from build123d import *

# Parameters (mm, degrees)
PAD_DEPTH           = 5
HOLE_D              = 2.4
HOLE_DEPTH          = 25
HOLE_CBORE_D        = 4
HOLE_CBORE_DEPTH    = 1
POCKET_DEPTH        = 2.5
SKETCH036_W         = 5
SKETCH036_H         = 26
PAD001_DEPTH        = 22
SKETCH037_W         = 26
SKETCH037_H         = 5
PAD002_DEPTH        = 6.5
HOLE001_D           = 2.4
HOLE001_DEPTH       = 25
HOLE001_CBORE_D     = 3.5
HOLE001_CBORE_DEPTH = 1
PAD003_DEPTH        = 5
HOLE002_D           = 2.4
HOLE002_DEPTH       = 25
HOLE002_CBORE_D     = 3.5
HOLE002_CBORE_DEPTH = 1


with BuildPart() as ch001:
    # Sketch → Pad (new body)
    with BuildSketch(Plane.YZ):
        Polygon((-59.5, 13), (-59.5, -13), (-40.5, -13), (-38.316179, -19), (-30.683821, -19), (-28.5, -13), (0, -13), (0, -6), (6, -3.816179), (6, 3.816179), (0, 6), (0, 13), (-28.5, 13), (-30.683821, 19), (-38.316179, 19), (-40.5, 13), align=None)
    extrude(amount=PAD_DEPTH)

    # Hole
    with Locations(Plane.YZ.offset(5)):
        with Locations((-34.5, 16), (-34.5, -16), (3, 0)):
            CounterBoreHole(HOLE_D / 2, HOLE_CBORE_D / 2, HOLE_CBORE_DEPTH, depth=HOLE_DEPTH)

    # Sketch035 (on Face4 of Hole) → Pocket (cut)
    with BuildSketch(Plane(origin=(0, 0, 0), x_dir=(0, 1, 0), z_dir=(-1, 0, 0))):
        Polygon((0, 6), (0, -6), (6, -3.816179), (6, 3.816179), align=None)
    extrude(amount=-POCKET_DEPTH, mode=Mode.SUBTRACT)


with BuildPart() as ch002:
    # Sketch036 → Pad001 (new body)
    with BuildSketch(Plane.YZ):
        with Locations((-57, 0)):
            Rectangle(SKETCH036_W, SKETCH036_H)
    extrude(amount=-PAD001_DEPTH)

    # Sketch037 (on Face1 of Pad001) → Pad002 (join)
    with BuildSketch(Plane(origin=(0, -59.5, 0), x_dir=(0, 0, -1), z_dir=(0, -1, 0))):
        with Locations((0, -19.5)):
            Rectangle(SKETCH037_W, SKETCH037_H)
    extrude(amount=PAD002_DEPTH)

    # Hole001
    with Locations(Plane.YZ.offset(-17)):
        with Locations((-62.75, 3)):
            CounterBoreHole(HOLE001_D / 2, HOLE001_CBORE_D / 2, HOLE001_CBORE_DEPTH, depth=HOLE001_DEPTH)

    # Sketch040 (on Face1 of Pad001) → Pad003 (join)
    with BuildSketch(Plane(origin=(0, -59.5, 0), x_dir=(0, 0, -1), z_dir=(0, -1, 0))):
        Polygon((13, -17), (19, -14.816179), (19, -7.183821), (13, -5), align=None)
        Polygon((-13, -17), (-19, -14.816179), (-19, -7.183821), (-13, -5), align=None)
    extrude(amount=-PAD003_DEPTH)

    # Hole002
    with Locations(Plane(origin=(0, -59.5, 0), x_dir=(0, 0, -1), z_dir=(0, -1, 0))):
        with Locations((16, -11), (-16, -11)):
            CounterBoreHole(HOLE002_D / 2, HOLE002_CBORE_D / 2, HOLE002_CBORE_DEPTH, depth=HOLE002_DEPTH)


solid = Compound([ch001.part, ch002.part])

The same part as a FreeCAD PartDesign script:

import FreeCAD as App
import Part
import Sketcher
from FreeCAD import Vector
Q = App.Units.Quantity

doc = App.newDocument("Part")
body = doc.addObject("PartDesign::Body", "Body")

# Sketch on YZ plane
sketch1 = doc.addObject("Sketcher::SketchObject", "Sketch")
body.addObject(sketch1)
sketch1.AttachmentSupport = (doc.YZ_Plane, [""])
sketch1.MapMode = "FlatFace"
sketch1.addGeometry([
    Part.LineSegment(Vector(-60, 13, 0), Vector(-60, -13, 0)),  # 0
    Part.LineSegment(Vector(-60, -13, 0), Vector(-40, -13, 0)),  # 1
    Part.LineSegment(Vector(-40, -13, 0), Vector(-38, -19, 0)),  # 2
    Part.LineSegment(Vector(-38, -19, 0), Vector(-31, -19, 0)),  # 3
    Part.LineSegment(Vector(-31, -19, 0), Vector(-28, -13, 0)),  # 4
    Part.LineSegment(Vector(-28, -13, 0), Vector(0, -13, 0)),  # 5
    Part.LineSegment(Vector(0, -13, 0), Vector(0, -6, 0)),  # 6
    Part.LineSegment(Vector(0, -6, 0), Vector(6, -4, 0)),  # 7
    Part.LineSegment(Vector(6, -4, 0), Vector(6, 4, 0)),  # 8
    Part.LineSegment(Vector(6, 4, 0), Vector(0, 6, 0)),  # 9
    Part.LineSegment(Vector(0, 6, 0), Vector(0, 13, 0)),  # 10
    Part.LineSegment(Vector(0, 13, 0), Vector(-28, 13, 0)),  # 11
    Part.LineSegment(Vector(-28, 13, 0), Vector(-31, 19, 0)),  # 12
    Part.LineSegment(Vector(-31, 19, 0), Vector(-38, 19, 0)),  # 13
    Part.LineSegment(Vector(-38, 19, 0), Vector(-40, 13, 0)),  # 14
    Part.LineSegment(Vector(-40, 13, 0), Vector(-60, 13, 0)),  # 15
], False)
sketch1.addConstraint([
    Sketcher.Constraint("Coincident", 0, 2, 1, 1),
    Sketcher.Constraint("Coincident", 1, 2, 2, 1),
    Sketcher.Constraint("Coincident", 2, 2, 3, 1),
    Sketcher.Constraint("Coincident", 3, 2, 4, 1),
    Sketcher.Constraint("Coincident", 4, 2, 5, 1),
    Sketcher.Constraint("Coincident", 5, 2, 6, 1),
    Sketcher.Constraint("Coincident", 6, 2, 7, 1),
    Sketcher.Constraint("Coincident", 7, 2, 8, 1),
    Sketcher.Constraint("Coincident", 8, 2, 9, 1),
    Sketcher.Constraint("Coincident", 9, 2, 10, 1),
    Sketcher.Constraint("Coincident", 10, 2, 11, 1),
    Sketcher.Constraint("Coincident", 11, 2, 12, 1),
    Sketcher.Constraint("Coincident", 12, 2, 13, 1),
    Sketcher.Constraint("Coincident", 13, 2, 14, 1),
    Sketcher.Constraint("Coincident", 14, 2, 15, 1),
    Sketcher.Constraint("Coincident", 15, 2, 0, 1),
    Sketcher.Constraint("Vertical", 0),
    Sketcher.Constraint("Horizontal", 1),
    Sketcher.Constraint("Horizontal", 3),
    Sketcher.Constraint("Horizontal", 5),
    Sketcher.Constraint("Vertical", 6),
    Sketcher.Constraint("Vertical", 8),
    Sketcher.Constraint("Vertical", 10),
    Sketcher.Constraint("Horizontal", 11),
    Sketcher.Constraint("Horizontal", 13),
    Sketcher.Constraint("Horizontal", 15),
    Sketcher.Constraint("Symmetric", 6, 2, 9, 2, -1, 1),
    Sketcher.Constraint("Symmetric", 5, 2, 10, 2, -1),
    Sketcher.Constraint("Symmetric", 3, 2, 12, 2, -1),
    Sketcher.Constraint("Symmetric", 1, 2, 14, 2, -1),
    Sketcher.Constraint("Perpendicular", 2, 7),
    Sketcher.Constraint("Perpendicular", 4, 9),
    Sketcher.Constraint("Perpendicular", 7, 12),
    Sketcher.Constraint("Perpendicular", 9, 14),
    Sketcher.Constraint("Horizontal", 1, 2, 4, 2),
    Sketcher.Constraint("Vertical", 4, 2, 11, 2),
    Sketcher.Constraint("Equal", 13, 8),
    Sketcher.Constraint("Equal", 4, 7),
    Sketcher.Constraint("DistanceX", 1, 1, 1, 2, 19.0),
    Sketcher.Constraint("DistanceY", 0, 2, 0, 1, 26.0),
    Sketcher.Constraint("DistanceY", 6, 1, 6, 2, 7.0),
    Sketcher.Constraint("Angle", 2, Q("-70.000003 deg")),
    Sketcher.Constraint("DistanceX", 5, 1, 5, 2, 28.5),
    Sketcher.Constraint("DistanceY", 2, 2, -1, 1, 19.0),
])
pad1 = doc.addObject("PartDesign::Pad", "Pad")
body.addObject(pad1)
pad1.Profile = sketch1
pad1.Length = 5

# Sketch on YZ plane
sketch2 = doc.addObject("Sketcher::SketchObject", "Sketch001")
body.addObject(sketch2)
sketch2.AttachmentSupport = (doc.YZ_Plane, [""])
sketch2.MapMode = "FlatFace"
sketch2.AttachmentOffset = App.Placement(Vector(0, 0, 5), App.Rotation())
sketch2.addGeometry([
    Part.Circle(Vector(-34.5, 16, 0), Vector(0, 0, 1), 1.2),
    Part.Circle(Vector(-34.5, -16, 0), Vector(0, 0, 1), 1.2),
    Part.Circle(Vector(3, 0, 0), Vector(0, 0, 1), 1.2),
], False)
sketch2.addConstraint([
    Sketcher.Constraint("Equal", 0, 1),
    Sketcher.Constraint("Equal", 1, 2),
    Sketcher.Constraint("Symmetric", 0, 3, 1, 3, -1),
    Sketcher.Constraint("PointOnObject", 2, 3, -1),
    Sketcher.Constraint("Diameter", 0, 2.4),
    Sketcher.Constraint("DistanceY", -1, 1, 0, 3, 16.0),
    Sketcher.Constraint("DistanceX", -1, 1, 2, 3, 3.0),
    Sketcher.Constraint("DistanceX", 0, 3, -1, 1, 34.5),
])
doc.recompute()
hole = doc.addObject("PartDesign::Hole", "Hole")
body.addObject(hole)
hole.Profile = sketch2
hole.ThreadType = "None"
hole.Diameter = 2.4
hole.DepthType = "Dimension"
hole.Depth = 25
hole.DrillPoint = "Flat"
hole.HoleCutType = "Counterbore"
hole.HoleCutDiameter = 4
hole.HoleCutDepth = 1

# Sketch on YZ plane
sketch3 = doc.addObject("Sketcher::SketchObject", "Sketch002")
body.addObject(sketch3)
sketch3.AttachmentSupport = (doc.YZ_Plane, [""])
sketch3.MapMode = "FlatFace"
sketch3.addGeometry([
    Part.LineSegment(Vector(0, -6, 0), Vector(0, 6, 0)),
    Part.LineSegment(Vector(0, 6, 0), Vector(6, 4, 0)),
    Part.LineSegment(Vector(6, 4, 0), Vector(6, -4, 0)),
    Part.LineSegment(Vector(6, -4, 0), Vector(0, -6, 0)),
], False)
sketch3.addConstraint([
    Sketcher.Constraint("Coincident", 0, 2, 1, 1),
    Sketcher.Constraint("Coincident", 1, 2, 2, 1),
    Sketcher.Constraint("Coincident", 2, 2, 3, 1),
    Sketcher.Constraint("Coincident", 3, 2, 0, 1),
    Sketcher.Constraint("Vertical", 0),
    Sketcher.Constraint("Vertical", 2),
    Sketcher.Constraint("Symmetric", 0, 2, 3, 2, -1, 1),
    Sketcher.Constraint("Equal", 1, 3),
    Sketcher.Constraint("DistanceY", 0, 1, 0, 2, 12.0),
    Sketcher.Constraint("Angle", 1, Q("-19.999997 deg")),
    Sketcher.Constraint("DistanceX", -1, 1, 1, 2, 6.0),
])
pocket1 = doc.addObject("PartDesign::Pocket", "Pocket")
body.addObject(pocket1)
pocket1.Profile = sketch3
pocket1.Length = 2.5
pocket1.Reversed = True
body2 = doc.addObject("PartDesign::Body", "Body001")

# Sketch on YZ plane
sketch4 = doc.addObject("Sketcher::SketchObject", "Sketch003")
body2.addObject(sketch4)
sketch4.AttachmentSupport = (doc.getObject("YZ_Plane001"), [""])
sketch4.MapMode = "FlatFace"
sketch4.addGeometry([
    Part.LineSegment(Vector(-60, 13, 0), Vector(-60, -13, 0)),
    Part.LineSegment(Vector(-60, -13, 0), Vector(-54, -13, 0)),
    Part.LineSegment(Vector(-54, -13, 0), Vector(-54, 13, 0)),
    Part.LineSegment(Vector(-54, 13, 0), Vector(-60, 13, 0)),
], False)
sketch4.addConstraint([
    Sketcher.Constraint("Coincident", 0, 2, 1, 1),
    Sketcher.Constraint("Coincident", 1, 2, 2, 1),
    Sketcher.Constraint("Coincident", 2, 2, 3, 1),
    Sketcher.Constraint("Coincident", 3, 2, 0, 1),
    Sketcher.Constraint("Vertical", 0),
    Sketcher.Constraint("Horizontal", 1),
    Sketcher.Constraint("Vertical", 2),
    Sketcher.Constraint("Horizontal", 3),
    Sketcher.Constraint("DistanceX", 1, 1, 1, 2, 5.0),
    Sketcher.Constraint("DistanceY", 0, 2, 0, 1, 26.0),
    Sketcher.Constraint("DistanceY", 0, 2, -1, 1, 13.0),
    Sketcher.Constraint("DistanceX", 0, 2, -1, 1, 59.5),
])
pad2 = doc.addObject("PartDesign::Pad", "Pad001")
body2.addObject(pad2)
pad2.Profile = sketch4
pad2.Length = 22
pad2.Reversed = True

# Sketch on XZ plane
sketch5 = doc.addObject("Sketcher::SketchObject", "Sketch004")
body2.addObject(sketch5)
sketch5.AttachmentSupport = (doc.getObject("XZ_Plane001"), [""])
sketch5.MapMode = "FlatFace"
sketch5.AttachmentOffset = App.Placement(Vector(0, 0, 59.5), App.Rotation())
sketch5.addGeometry([
    Part.LineSegment(Vector(-17, 13, 0), Vector(-22, 13, 0)),
    Part.LineSegment(Vector(-22, 13, 0), Vector(-22, -13, 0)),
    Part.LineSegment(Vector(-22, -13, 0), Vector(-17, -13, 0)),
    Part.LineSegment(Vector(-17, -13, 0), Vector(-17, 13, 0)),
], False)
sketch5.addConstraint([
    Sketcher.Constraint("Coincident", 0, 2, 1, 1),
    Sketcher.Constraint("Coincident", 1, 2, 2, 1),
    Sketcher.Constraint("Coincident", 2, 2, 3, 1),
    Sketcher.Constraint("Coincident", 3, 2, 0, 1),
    Sketcher.Constraint("Horizontal", 0),
    Sketcher.Constraint("Vertical", 1),
    Sketcher.Constraint("Horizontal", 2),
    Sketcher.Constraint("Vertical", 3),
    Sketcher.Constraint("DistanceX", 0, 2, 0, 1, 5.0),
    Sketcher.Constraint("DistanceY", 1, 2, 1, 1, 26.0),
    Sketcher.Constraint("DistanceX", 0, 2, -1, 1, 22.0),
    Sketcher.Constraint("DistanceY", -1, 1, 0, 2, 13.0),
])
pad3 = doc.addObject("PartDesign::Pad", "Pad002")
body2.addObject(pad3)
pad3.Profile = sketch5
pad3.Length = 6.5

# Sketch on YZ plane
sketch6 = doc.addObject("Sketcher::SketchObject", "Sketch005")
body2.addObject(sketch6)
sketch6.AttachmentSupport = (doc.getObject("YZ_Plane001"), [""])
sketch6.MapMode = "FlatFace"
sketch6.AttachmentOffset = App.Placement(Vector(0, 0, -17), App.Rotation())
sketch6.addGeometry(Part.Circle(Vector(-62.8, 3, 0), Vector(0, 0, 1), 1.2), False)
sketch6.addConstraint([
    Sketcher.Constraint("Diameter", 0, 2.4),
    Sketcher.Constraint("DistanceY", -1, 1, 0, 3, 3.0),
    Sketcher.Constraint("DistanceX", 0, 3, -1, 1, 62.75),
])
doc.recompute()
hole2 = doc.addObject("PartDesign::Hole", "Hole001")
body2.addObject(hole2)
hole2.Profile = sketch6
hole2.ThreadType = "None"
hole2.Diameter = 2.4
hole2.DepthType = "Dimension"
hole2.Depth = 25
hole2.DrillPoint = "Flat"
hole2.HoleCutType = "Counterbore"
hole2.HoleCutDiameter = 3.5
hole2.HoleCutDepth = 1

# Sketch on XZ plane
sketch7 = doc.addObject("Sketcher::SketchObject", "Sketch006")
body2.addObject(sketch7)
sketch7.AttachmentSupport = (doc.getObject("XZ_Plane001"), [""])
sketch7.MapMode = "FlatFace"
sketch7.AttachmentOffset = App.Placement(Vector(0, 0, 59.5), App.Rotation())
sketch7.addGeometry([
    Part.LineSegment(Vector(-17, -13, 0), Vector(-15, -19, 0)),  # 0
    Part.LineSegment(Vector(-15, -19, 0), Vector(-7, -19, 0)),  # 1
    Part.LineSegment(Vector(-7, -19, 0), Vector(-5, -13, 0)),  # 2
    Part.LineSegment(Vector(-5, -13, 0), Vector(-17, -13, 0)),  # 3
    Part.LineSegment(Vector(-15, 19, 0), Vector(-17, 13, 0)),  # 4
    Part.LineSegment(Vector(-17, 13, 0), Vector(-5, 13, 0)),  # 5
    Part.LineSegment(Vector(-5, 13, 0), Vector(-7, 19, 0)),  # 6
    Part.LineSegment(Vector(-7, 19, 0), Vector(-15, 19, 0)),  # 7
], False)
sketch7.addConstraint([
    Sketcher.Constraint("Coincident", 0, 2, 1, 1),
    Sketcher.Constraint("Coincident", 1, 2, 2, 1),
    Sketcher.Constraint("Coincident", 2, 2, 3, 1),
    Sketcher.Constraint("Coincident", 3, 2, 0, 1),
    Sketcher.Constraint("Coincident", 4, 2, 5, 1),
    Sketcher.Constraint("Coincident", 5, 2, 6, 1),
    Sketcher.Constraint("Coincident", 6, 2, 7, 1),
    Sketcher.Constraint("Coincident", 7, 2, 4, 1),
    Sketcher.Constraint("Horizontal", 1),
    Sketcher.Constraint("Horizontal", 3),
    Sketcher.Constraint("Horizontal", 5),
    Sketcher.Constraint("Horizontal", 7),
    Sketcher.Constraint("Symmetric", 3, 2, 4, 2, -1),
    Sketcher.Constraint("Symmetric", 1, 2, 6, 2, -1),
    Sketcher.Constraint("Parallel", 2, 4),
    Sketcher.Constraint("Parallel", 0, 6),
    Sketcher.Constraint("Vertical", 2, 2, 5, 2),
    Sketcher.Constraint("DistanceX", 3, 2, 3, 1, 12.0),
    Sketcher.Constraint("Angle", 0, Q("-70.000003 deg")),
    Sketcher.Constraint("DistanceY", 0, 2, -1, 1, 19.0),
    Sketcher.Constraint("DistanceX", 2, 2, -1, 1, 5.0),
    Sketcher.Constraint("DistanceY", 2, 2, -1, 1, 13.0),
])
pad4 = doc.addObject("PartDesign::Pad", "Pad003")
body2.addObject(pad4)
pad4.Profile = sketch7
pad4.Length = 5
pad4.Reversed = True

# Sketch on XZ plane
sketch8 = doc.addObject("Sketcher::SketchObject", "Sketch007")
body2.addObject(sketch8)
sketch8.AttachmentSupport = (doc.getObject("XZ_Plane001"), [""])
sketch8.MapMode = "FlatFace"
sketch8.AttachmentOffset = App.Placement(Vector(0, 0, 59.5), App.Rotation())
sketch8.addGeometry([
    Part.Circle(Vector(-11, -16, 0), Vector(0, 0, 1), 1.2),
    Part.Circle(Vector(-11, 16, 0), Vector(0, 0, 1), 1.2),
], False)
sketch8.addConstraint([
    Sketcher.Constraint("Equal", 0, 1),
    Sketcher.Constraint("Symmetric", 0, 3, 1, 3, -1),
    Sketcher.Constraint("Diameter", 0, 2.4),
    Sketcher.Constraint("DistanceX", 0, 3, -1, 1, 11.0),
    Sketcher.Constraint("DistanceY", 0, 3, -1, 1, 16.0),
])
doc.recompute()
hole3 = doc.addObject("PartDesign::Hole", "Hole002")
body2.addObject(hole3)
hole3.Profile = sketch8
hole3.ThreadType = "None"
hole3.Diameter = 2.4
hole3.DepthType = "Dimension"
hole3.Depth = 25
hole3.DrillPoint = "Flat"
hole3.HoleCutType = "Counterbore"
hole3.HoleCutDiameter = 3.5
hole3.HoleCutDepth = 1

doc.recompute()
